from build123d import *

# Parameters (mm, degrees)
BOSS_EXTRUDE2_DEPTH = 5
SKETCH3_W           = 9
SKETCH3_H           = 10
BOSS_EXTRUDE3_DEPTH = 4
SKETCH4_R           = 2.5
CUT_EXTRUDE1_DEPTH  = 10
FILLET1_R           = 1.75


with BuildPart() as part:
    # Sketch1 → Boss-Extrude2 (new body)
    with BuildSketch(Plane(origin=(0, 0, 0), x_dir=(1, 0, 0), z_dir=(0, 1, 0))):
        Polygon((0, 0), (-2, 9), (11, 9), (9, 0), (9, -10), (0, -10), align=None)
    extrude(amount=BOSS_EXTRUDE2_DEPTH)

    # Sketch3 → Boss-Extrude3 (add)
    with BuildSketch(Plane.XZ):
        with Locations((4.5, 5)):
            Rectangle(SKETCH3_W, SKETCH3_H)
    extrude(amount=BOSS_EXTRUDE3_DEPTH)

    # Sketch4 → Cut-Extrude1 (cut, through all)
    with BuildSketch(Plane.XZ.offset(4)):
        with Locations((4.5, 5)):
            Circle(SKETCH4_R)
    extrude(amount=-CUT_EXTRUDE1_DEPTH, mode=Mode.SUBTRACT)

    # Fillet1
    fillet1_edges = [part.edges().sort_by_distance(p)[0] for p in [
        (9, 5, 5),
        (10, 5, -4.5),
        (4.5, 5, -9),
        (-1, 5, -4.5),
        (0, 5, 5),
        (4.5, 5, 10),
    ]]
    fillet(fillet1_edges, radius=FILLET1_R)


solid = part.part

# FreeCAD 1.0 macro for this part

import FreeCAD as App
import Part
import Sketcher
from FreeCAD import Vector
Q = App.Units.Quantity


def edges_at(feature, points):
    """Names of the edges that pass closest to the given points."""
    edges = feature.Shape.Edges
    near = lambda p: min(range(len(edges)), key=lambda i: edges[i].distToShape(Part.Vertex(*p))[0])
    return sorted({f"Edge{near(p) + 1}" for p in points})


def add_polygon(sketch, points):
    """Adds a closed chain of lines whose ends are joined by coincident constraints."""
    first, n = sketch.GeometryCount, len(points)
    for a, b in zip(points, points[1:] + points[:1]):
        sketch.addGeometry(Part.LineSegment(App.Vector(*a, 0), App.Vector(*b, 0)), False)
    for i in range(n):
        sketch.addConstraint(Sketcher.Constraint("Coincident", first + i, 2, first + (i + 1) % n, 1))

doc = App.newDocument("Part")
body = doc.addObject("PartDesign::Body", "Body")

# Sketch on XZ plane
sketch1 = body.newObject("Sketcher::SketchObject", "Sketch")
sketch1.AttachmentSupport = (doc.getObject("XZ_Plane"), [""])
sketch1.MapMode = "FlatFace"
add_polygon(sketch1, [(-2, -9), (0, 0), (0, 10), (9, 10), (9, 0), (11, -9)])  # lines 0-5
sketch1.addConstraint([
    Sketcher.Constraint("Vertical", 1),
    Sketcher.Constraint("Horizontal", 2),
    Sketcher.Constraint("Vertical", 3),
    Sketcher.Constraint("Horizontal", 5),
    Sketcher.Constraint("Coincident", 0, 2, -1, 1),
    Sketcher.Constraint("PointOnObject", 3, 2, -1),
    Sketcher.Constraint("Equal", 0, 4),
    Sketcher.Constraint("DistanceX", 2, 1, 2, 2, Q("9 mm")),
    Sketcher.Constraint("DistanceX", 5, 2, 5, 1, Q("13 mm")),
    Sketcher.Constraint("DistanceY", 1, 1, 1, 2, Q("10 mm")),
    Sketcher.Constraint("DistanceY", 4, 2, -1, 1, Q("9 mm")),
])
pad1 = body.newObject("PartDesign::Pad", "Pad")
pad1.Profile = sketch1
pad1.Length = 5
pad1.Reversed = True

# Sketch on XZ plane
sketch2 = body.newObject("Sketcher::SketchObject", "Sketch001")
sketch2.AttachmentSupport = (doc.getObject("XZ_Plane"), [""])
sketch2.MapMode = "FlatFace"
add_polygon(sketch2, [(0, 10), (0, 0), (9, 0), (9, 10)])  # lines 0-3
sketch2.addConstraint([
    Sketcher.Constraint("Vertical", 0),
    Sketcher.Constraint("Horizontal", 1),
    Sketcher.Constraint("Vertical", 2),
    Sketcher.Constraint("Horizontal", 3),
    Sketcher.Constraint("Coincident", 0, 2, -1, 1),
    Sketcher.Constraint("DistanceX", 1, 1, 1, 2, Q("9 mm")),
    Sketcher.Constraint("DistanceY", 0, 2, 0, 1, Q("10 mm")),
])
pad2 = body.newObject("PartDesign::Pad", "Pad001")
pad2.Profile = sketch2
pad2.Length = 4

# Sketch on XZ plane
sketch3 = body.newObject("Sketcher::SketchObject", "Sketch002")
sketch3.AttachmentSupport = (doc.getObject("XZ_Plane"), [""])
sketch3.MapMode = "FlatFace"
sketch3.AttachmentOffset = App.Placement(Vector(0, 0, 4), App.Rotation())
sketch3.addGeometry(Part.Circle(Vector(4.5, 5, 0), Vector(0, 0, 1), 2.5), False)
sketch3.addConstraint([
    Sketcher.Constraint("Diameter", 0, Q("5 mm")),
    Sketcher.Constraint("DistanceY", -1, 1, 0, 3, Q("5 mm")),
    Sketcher.Constraint("DistanceX", -1, 1, 0, 3, Q("4.5 mm")),
])
pocket1 = body.newObject("PartDesign::Pocket", "Pocket")
pocket1.Profile = sketch3
pocket1.Type = "ThroughAll"
doc.recompute()

fillet = body.newObject("PartDesign::Fillet", "Fillet")
fillet.Base = (pocket1, edges_at(pocket1, [
    (9, 5, 5),
    (10, 5, -4.5),
    (4.5, 5, -9),
    (-1, 5, -4.5),
    (0, 5, 5),
    (4.5, 5, 10),
]))
fillet.Radius = 1.75

doc.recompute()
